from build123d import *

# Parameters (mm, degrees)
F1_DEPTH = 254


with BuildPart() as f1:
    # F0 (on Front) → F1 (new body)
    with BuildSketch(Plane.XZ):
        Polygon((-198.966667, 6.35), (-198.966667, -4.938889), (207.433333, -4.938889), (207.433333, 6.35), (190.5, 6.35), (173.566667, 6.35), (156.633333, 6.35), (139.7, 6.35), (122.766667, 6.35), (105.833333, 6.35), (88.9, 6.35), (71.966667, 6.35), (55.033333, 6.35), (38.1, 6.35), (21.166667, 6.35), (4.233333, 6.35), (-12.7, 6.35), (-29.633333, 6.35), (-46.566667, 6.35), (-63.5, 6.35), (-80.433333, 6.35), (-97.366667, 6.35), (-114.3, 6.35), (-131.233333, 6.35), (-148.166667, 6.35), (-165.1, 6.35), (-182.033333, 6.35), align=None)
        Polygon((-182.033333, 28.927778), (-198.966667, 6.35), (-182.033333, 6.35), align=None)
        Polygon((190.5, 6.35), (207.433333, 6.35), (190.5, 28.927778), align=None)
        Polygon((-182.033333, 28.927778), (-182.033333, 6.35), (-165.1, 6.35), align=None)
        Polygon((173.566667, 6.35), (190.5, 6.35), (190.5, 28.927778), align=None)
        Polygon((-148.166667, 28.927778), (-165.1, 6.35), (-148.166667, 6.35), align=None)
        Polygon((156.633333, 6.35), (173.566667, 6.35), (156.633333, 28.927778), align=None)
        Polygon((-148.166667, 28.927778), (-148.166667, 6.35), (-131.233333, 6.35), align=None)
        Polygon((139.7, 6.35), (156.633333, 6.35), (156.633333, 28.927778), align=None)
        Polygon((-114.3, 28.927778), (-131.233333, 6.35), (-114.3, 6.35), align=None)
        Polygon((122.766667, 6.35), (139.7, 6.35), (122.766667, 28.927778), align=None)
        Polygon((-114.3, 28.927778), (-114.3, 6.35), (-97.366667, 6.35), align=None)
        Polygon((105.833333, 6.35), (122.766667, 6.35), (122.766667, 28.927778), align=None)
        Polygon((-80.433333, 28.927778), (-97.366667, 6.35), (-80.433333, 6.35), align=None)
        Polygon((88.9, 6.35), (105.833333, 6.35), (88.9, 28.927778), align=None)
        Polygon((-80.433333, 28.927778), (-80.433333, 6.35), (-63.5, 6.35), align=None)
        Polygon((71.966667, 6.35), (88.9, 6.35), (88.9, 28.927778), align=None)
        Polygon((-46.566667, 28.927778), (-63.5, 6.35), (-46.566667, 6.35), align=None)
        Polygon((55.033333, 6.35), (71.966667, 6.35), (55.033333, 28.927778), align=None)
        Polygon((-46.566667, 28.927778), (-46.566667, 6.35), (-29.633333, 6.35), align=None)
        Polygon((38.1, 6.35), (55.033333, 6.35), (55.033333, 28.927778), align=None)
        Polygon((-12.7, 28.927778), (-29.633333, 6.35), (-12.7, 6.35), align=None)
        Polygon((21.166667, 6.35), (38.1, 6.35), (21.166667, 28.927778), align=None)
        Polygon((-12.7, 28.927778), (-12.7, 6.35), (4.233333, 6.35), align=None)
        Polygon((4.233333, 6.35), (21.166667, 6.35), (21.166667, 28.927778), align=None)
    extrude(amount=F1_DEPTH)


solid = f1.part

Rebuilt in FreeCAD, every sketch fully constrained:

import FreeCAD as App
import Part
import Sketcher
from FreeCAD import Vector
Q = App.Units.Quantity


def add_polygon(sketch, points):
    """Adds a closed chain of lines whose ends are joined by coincident constraints."""
    first, n = sketch.GeometryCount, len(points)
    for a, b in zip(points, points[1:] + points[:1]):
        sketch.addGeometry(Part.LineSegment(App.Vector(*a, 0), App.Vector(*b, 0)), False)
    for i in range(n):
        sketch.addConstraint(Sketcher.Constraint("Coincident", first + i, 2, first + (i + 1) % n, 1))

doc = App.newDocument("Part")
body = doc.addObject("PartDesign::Body", "Body")

sketch1 = body.newObject("Sketcher::SketchObject", "Sketch")
sketch1.AttachmentSupport = (doc.getObject("XZ_Plane"), [""])
sketch1.MapMode = "FlatFace"
add_polygon(sketch1, [(-199, 6), (-199, -5), (207, -5), (207, 6), (190, 29), (174, 6), (157, 29), (140, 6), (123, 29), (106, 6), (89, 29), (72, 6), (55, 29), (38, 6), (21, 29), (4, 6), (-13, 29), (-30, 6), (-47, 29), (-64, 6), (-80, 29), (-97, 6), (-114, 29), (-131, 6), (-148, 29), (-165, 6), (-182, 29)])
sketch1.addConstraint([
    Sketcher.Constraint("Vertical", 0),
    Sketcher.Constraint("Horizontal", 1),
    Sketcher.Constraint("Vertical", 2),
    Sketcher.Constraint("Parallel", 3, 5),
    Sketcher.Constraint("Parallel", 4, 6),
    Sketcher.Constraint("Parallel", 5, 7),
    Sketcher.Constraint("Parallel", 6, 8),
    Sketcher.Constraint("Parallel", 7, 9),
    Sketcher.Constraint("Parallel", 8, 10),
    Sketcher.Constraint("Parallel", 9, 11),
    Sketcher.Constraint("Parallel", 10, 12),
    Sketcher.Constraint("Parallel", 11, 13),
    Sketcher.Constraint("Parallel", 12, 14),
    Sketcher.Constraint("Parallel", 13, 15),
    Sketcher.Constraint("Parallel", 14, 16),
    Sketcher.Constraint("Parallel", 15, 17),
    Sketcher.Constraint("Parallel", 16, 18),
    Sketcher.Constraint("Parallel", 17, 19),
    Sketcher.Constraint("Parallel", 18, 20),
    Sketcher.Constraint("Parallel", 19, 21),
    Sketcher.Constraint("Parallel", 20, 22),
    Sketcher.Constraint("Parallel", 21, 23),
    Sketcher.Constraint("Parallel", 22, 24),
    Sketcher.Constraint("Parallel", 23, 25),
    Sketcher.Constraint("Parallel", 24, 26),
    Sketcher.Constraint("Horizontal", 2, 2, 4, 2),
    Sketcher.Constraint("Horizontal", 3, 2, 5, 2),
    Sketcher.Constraint("Horizontal", 4, 2, 6, 2),
    Sketcher.Constraint("Horizontal", 5, 2, 7, 2),
    Sketcher.Constraint("Horizontal", 6, 2, 8, 2),
    Sketcher.Constraint("Horizontal", 7, 2, 9, 2),
    Sketcher.Constraint("Horizontal", 8, 2, 10, 2),
    Sketcher.Constraint("Horizontal", 9, 2, 11, 2),
    Sketcher.Constraint("Horizontal", 10, 2, 12, 2),
    Sketcher.Constraint("Horizontal", 11, 2, 13, 2),
    Sketcher.Constraint("Horizontal", 12, 2, 14, 2),
    Sketcher.Constraint("Horizontal", 13, 2, 15, 2),
    Sketcher.Constraint("Horizontal", 14, 2, 16, 2),
    Sketcher.Constraint("Horizontal", 15, 2, 17, 2),
    Sketcher.Constraint("Horizontal", 16, 2, 18, 2),
    Sketcher.Constraint("Horizontal", 17, 2, 19, 2),
    Sketcher.Constraint("Horizontal", 18, 2, 20, 2),
    Sketcher.Constraint("Horizontal", 19, 2, 21, 2),
    Sketcher.Constraint("Horizontal", 20, 2, 22, 2),
    Sketcher.Constraint("Horizontal", 21, 2, 23, 2),
    Sketcher.Constraint("Horizontal", 22, 2, 24, 2),
    Sketcher.Constraint("Horizontal", 23, 2, 25, 2),
    Sketcher.Constraint("Horizontal", 24, 2, 26, 2),
    Sketcher.Constraint("Equal", 3, 4),
    Sketcher.Constraint("DistanceX", 1, 1, 1, 2, Q("16 in")),
    Sketcher.Constraint("DistanceX", -1, 1, 3, 2, Q("7.5 in")),
    Sketcher.Constraint("DistanceY", -1, 1, 2, 2, Q("0.25 in")),
    Sketcher.Constraint("DistanceY", 0, 2, 0, 1, 11.288889),
    Sketcher.Constraint("DistanceY", -1, 1, 3, 2, 28.927778),
])
pad1 = body.newObject("PartDesign::Pad", "Pad")
pad1.Profile = sketch1
pad1.Length = Q("10 in")

doc.recompute()
